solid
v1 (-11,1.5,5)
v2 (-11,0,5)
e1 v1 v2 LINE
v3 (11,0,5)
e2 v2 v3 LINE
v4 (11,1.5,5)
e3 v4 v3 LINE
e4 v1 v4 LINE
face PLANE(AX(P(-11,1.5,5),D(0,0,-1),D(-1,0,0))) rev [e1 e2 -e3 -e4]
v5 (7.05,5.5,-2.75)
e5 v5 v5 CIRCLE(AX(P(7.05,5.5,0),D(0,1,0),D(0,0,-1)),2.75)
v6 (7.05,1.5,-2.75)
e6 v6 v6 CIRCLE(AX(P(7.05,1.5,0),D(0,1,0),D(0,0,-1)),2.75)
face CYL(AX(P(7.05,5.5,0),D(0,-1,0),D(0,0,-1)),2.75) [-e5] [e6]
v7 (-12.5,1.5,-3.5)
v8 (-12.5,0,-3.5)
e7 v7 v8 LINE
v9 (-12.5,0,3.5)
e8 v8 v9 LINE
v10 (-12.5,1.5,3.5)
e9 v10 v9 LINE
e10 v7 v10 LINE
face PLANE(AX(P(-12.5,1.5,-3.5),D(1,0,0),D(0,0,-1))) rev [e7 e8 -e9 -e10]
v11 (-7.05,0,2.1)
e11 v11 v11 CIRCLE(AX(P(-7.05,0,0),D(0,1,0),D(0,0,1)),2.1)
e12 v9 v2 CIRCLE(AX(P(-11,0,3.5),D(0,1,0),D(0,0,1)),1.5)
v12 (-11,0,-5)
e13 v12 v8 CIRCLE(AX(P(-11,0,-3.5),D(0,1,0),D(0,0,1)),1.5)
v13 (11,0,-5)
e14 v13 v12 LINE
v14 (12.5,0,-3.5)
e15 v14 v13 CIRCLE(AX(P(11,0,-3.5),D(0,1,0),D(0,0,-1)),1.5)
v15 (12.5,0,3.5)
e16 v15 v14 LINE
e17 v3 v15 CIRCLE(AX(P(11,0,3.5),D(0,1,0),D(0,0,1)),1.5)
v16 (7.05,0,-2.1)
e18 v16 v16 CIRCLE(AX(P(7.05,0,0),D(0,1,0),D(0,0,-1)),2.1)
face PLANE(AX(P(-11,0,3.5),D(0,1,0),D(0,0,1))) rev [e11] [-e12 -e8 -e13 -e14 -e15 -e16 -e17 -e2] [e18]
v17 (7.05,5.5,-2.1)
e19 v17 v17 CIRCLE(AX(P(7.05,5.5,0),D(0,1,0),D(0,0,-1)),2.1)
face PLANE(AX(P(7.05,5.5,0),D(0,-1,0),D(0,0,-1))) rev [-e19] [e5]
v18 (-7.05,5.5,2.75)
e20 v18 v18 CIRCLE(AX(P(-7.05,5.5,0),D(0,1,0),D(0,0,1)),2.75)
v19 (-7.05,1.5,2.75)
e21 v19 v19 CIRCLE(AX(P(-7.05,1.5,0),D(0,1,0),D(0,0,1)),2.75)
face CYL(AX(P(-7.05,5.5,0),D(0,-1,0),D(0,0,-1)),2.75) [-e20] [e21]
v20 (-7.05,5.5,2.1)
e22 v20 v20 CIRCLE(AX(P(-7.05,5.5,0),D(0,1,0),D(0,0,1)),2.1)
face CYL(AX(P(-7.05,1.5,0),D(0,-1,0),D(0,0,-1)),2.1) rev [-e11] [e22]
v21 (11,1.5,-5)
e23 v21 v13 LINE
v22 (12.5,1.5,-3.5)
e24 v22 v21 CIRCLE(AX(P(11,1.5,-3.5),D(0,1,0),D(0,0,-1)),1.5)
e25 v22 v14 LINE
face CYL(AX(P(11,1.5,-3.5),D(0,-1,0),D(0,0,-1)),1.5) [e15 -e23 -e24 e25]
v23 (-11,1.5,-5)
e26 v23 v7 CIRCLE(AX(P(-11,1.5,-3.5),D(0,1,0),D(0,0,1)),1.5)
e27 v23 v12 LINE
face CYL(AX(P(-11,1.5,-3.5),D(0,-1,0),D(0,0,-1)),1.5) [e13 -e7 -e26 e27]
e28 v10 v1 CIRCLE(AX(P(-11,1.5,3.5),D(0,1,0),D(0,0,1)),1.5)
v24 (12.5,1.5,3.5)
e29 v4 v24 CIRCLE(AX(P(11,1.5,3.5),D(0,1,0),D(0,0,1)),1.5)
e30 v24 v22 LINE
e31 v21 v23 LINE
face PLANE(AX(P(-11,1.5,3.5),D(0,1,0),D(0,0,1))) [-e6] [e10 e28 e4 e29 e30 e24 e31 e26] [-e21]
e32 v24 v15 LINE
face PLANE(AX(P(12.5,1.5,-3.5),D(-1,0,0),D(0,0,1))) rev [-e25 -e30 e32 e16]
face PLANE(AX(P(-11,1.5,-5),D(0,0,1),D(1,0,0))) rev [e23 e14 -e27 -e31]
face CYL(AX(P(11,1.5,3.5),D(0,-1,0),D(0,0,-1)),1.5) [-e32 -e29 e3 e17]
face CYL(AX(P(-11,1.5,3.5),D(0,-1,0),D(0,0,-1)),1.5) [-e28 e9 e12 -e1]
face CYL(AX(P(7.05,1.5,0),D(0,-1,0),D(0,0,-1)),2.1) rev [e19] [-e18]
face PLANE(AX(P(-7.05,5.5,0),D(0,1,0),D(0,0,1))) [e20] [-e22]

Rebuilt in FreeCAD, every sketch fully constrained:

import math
import FreeCAD as App
import Part
import Sketcher

V = App.Vector

doc = App.newDocument("Part")
body = doc.addObject("PartDesign::Body", "Body")

# Sketch on XZ plane
sketch1 = body.newObject("Sketcher::SketchObject", "Sketch")
sketch1.AttachmentSupport = (doc.getObject("XZ_Plane"), [""])
sketch1.MapMode = "FlatFace"
sketch1.addGeometry(Part.LineSegment(V(11, -5, 0), V(-11, -5, 0)), False)
sketch1.addGeometry(Part.ArcOfCircle(Part.Circle(V(-11, -3.5, 0), V(0, 0, 1), 1.5), math.radians(180), math.radians(270)), False)
sketch1.addGeometry(Part.LineSegment(V(-12.5, -3.5, 0), V(-12.5, 3.5, 0)), False)
sketch1.addGeometry(Part.ArcOfCircle(Part.Circle(V(-11, 3.5, 0), V(0, 0, 1), 1.5), math.radians(90), math.radians(180)), False)
sketch1.addGeometry(Part.LineSegment(V(-11, 5, 0), V(11, 5, 0)), False)
sketch1.addGeometry(Part.ArcOfCircle(Part.Circle(V(11, 3.5, 0), V(0, 0, 1), 1.5), math.radians(0), math.radians(90)), False)
sketch1.addGeometry(Part.LineSegment(V(12.5, 3.5, 0), V(12.5, -3.5, 0)), False)
sketch1.addGeometry(Part.ArcOfCircle(Part.Circle(V(11, -3.5, 0), V(0, 0, 1), 1.5), math.radians(-90), math.radians(0)), False)
sketch1.addGeometry(Part.Circle(V(7, 0, 0), V(0, 0, 1), 2.1), False)
sketch1.addGeometry(Part.Circle(V(-7, 0, 0), V(0, 0, 1), 2.1), False)
sketch1.addConstraint(Sketcher.Constraint("Tangent", 0, 2, 1, 2))
sketch1.addConstraint(Sketcher.Constraint("Tangent", 1, 1, 2, 1))
sketch1.addConstraint(Sketcher.Constraint("Tangent", 2, 2, 3, 2))
sketch1.addConstraint(Sketcher.Constraint("Tangent", 3, 1, 4, 1))
sketch1.addConstraint(Sketcher.Constraint("Tangent", 4, 2, 5, 2))
sketch1.addConstraint(Sketcher.Constraint("Tangent", 5, 1, 6, 1))
sketch1.addConstraint(Sketcher.Constraint("Tangent", 6, 2, 7, 2))
sketch1.addConstraint(Sketcher.Constraint("Tangent", 7, 1, 0, 1))
sketch1.addConstraint(Sketcher.Constraint("Horizontal", 0))
sketch1.addConstraint(Sketcher.Constraint("Vertical", 2))
sketch1.addConstraint(Sketcher.Constraint("Horizontal", 4))
sketch1.addConstraint(Sketcher.Constraint("Vertical", 6))
sketch1.addConstraint(Sketcher.Constraint("Equal", 1, 3))
sketch1.addConstraint(Sketcher.Constraint("Equal", 3, 5))
sketch1.addConstraint(Sketcher.Constraint("Equal", 5, 7))
sketch1.addConstraint(Sketcher.Constraint("Equal", 8, 9))
sketch1.addConstraint(Sketcher.Constraint("Symmetric", 1, 3, 5, 3, -1, 1))
sketch1.addConstraint(Sketcher.Constraint("Symmetric", 8, 3, 9, 3, -1, 1))
sketch1.addConstraint(Sketcher.Constraint("PointOnObject", 8, 3, -1))
sketch1.addConstraint(Sketcher.Constraint("Diameter", 8, 4.2))
sketch1.addConstraint(Sketcher.Constraint("Radius", 1, 1.5))
sketch1.addConstraint(Sketcher.Constraint("DistanceX", 0, 2, 0, 1, 22.0))
sketch1.addConstraint(Sketcher.Constraint("DistanceY", 2, 1, 2, 2, 7.0))
sketch1.addConstraint(Sketcher.Constraint("DistanceX", 9, 3, 8, 3, 14.1))
pad1 = body.newObject("PartDesign::Pad", "Pad")
pad1.Profile = sketch1
pad1.Length = 1.5
pad1.Reversed = True

# Sketch on XZ plane
sketch2 = body.newObject("Sketcher::SketchObject", "Sketch001")
sketch2.AttachmentSupport = (doc.getObject("XZ_Plane"), [""])
sketch2.MapMode = "FlatFace"
sketch2.AttachmentOffset = App.Placement(V(0, 0, -1.5), App.Rotation())
sketch2.addGeometry(Part.Circle(V(-7, 0, 0), V(0, 0, 1), 2.8), False)
sketch2.addGeometry(Part.Circle(V(-7, 0, 0), V(0, 0, 1), 2.1), False)
sketch2.addGeometry(Part.Circle(V(7, 0, 0), V(0, 0, 1), 2.8), False)
sketch2.addGeometry(Part.Circle(V(7, 0, 0), V(0, 0, 1), 2.1), False)
sketch2.addConstraint(Sketcher.Constraint("Coincident", 1, 3, 0, 3))
sketch2.addConstraint(Sketcher.Constraint("Coincident", 3, 3, 2, 3))
sketch2.addConstraint(Sketcher.Constraint("Equal", 0, 2))
sketch2.addConstraint(Sketcher.Constraint("Equal", 1, 3))
sketch2.addConstraint(Sketcher.Constraint("Symmetric", 0, 3, 2, 3, -1, 1))
sketch2.addConstraint(Sketcher.Constraint("PointOnObject", 0, 3, -1))
sketch2.addConstraint(Sketcher.Constraint("Diameter", 0, 5.5))
sketch2.addConstraint(Sketcher.Constraint("Diameter", 1, 4.2))
sketch2.addConstraint(Sketcher.Constraint("DistanceX", 0, 3, 2, 3, 14.1))
pad2 = body.newObject("PartDesign::Pad", "Pad001")
pad2.Profile = sketch2
pad2.Length = 4
pad2.Reversed = True

doc.recompute()
